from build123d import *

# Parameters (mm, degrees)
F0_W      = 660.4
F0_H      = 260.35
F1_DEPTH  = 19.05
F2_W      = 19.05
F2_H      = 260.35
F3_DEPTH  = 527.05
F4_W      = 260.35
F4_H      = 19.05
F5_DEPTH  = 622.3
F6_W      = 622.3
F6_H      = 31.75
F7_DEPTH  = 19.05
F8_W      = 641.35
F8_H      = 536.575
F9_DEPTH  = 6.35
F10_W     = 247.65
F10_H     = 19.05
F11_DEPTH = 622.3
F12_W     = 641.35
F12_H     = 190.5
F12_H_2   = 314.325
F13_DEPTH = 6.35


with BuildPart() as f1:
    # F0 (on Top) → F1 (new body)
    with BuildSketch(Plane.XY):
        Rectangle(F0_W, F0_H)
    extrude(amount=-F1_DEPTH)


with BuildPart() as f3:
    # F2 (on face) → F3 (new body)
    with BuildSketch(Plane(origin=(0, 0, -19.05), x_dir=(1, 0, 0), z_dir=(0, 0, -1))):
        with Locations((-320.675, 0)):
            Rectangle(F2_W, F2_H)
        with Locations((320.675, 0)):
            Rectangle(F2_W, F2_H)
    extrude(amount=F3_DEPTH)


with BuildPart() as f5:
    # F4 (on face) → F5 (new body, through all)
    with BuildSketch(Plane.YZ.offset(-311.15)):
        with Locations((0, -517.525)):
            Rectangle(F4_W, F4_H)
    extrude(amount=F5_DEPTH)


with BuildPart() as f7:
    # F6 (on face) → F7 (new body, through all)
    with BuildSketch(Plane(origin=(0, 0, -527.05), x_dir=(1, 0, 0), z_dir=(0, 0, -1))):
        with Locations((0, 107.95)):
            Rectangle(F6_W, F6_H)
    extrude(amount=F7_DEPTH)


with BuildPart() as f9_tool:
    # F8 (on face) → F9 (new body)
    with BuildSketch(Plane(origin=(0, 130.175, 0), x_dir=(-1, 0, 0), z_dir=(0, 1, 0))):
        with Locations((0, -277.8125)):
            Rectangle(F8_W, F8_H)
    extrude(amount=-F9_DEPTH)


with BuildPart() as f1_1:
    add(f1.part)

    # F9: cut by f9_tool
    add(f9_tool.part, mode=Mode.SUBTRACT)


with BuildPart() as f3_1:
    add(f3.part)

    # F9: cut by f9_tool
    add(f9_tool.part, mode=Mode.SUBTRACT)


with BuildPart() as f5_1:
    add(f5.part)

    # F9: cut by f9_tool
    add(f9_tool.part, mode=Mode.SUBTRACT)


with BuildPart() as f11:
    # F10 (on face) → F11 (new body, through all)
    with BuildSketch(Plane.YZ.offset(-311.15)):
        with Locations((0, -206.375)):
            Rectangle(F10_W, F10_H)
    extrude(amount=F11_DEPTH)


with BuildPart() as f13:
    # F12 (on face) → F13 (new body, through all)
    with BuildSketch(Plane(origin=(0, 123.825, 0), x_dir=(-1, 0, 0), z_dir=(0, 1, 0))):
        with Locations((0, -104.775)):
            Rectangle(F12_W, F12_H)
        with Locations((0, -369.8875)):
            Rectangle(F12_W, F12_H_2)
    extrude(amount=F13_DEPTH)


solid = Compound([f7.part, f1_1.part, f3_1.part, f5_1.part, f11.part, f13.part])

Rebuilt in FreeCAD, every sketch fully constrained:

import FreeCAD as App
import Part
import Sketcher

V = App.Vector
Q = App.Units.Quantity


def add_polygon(sketch, points):
    """Adds a closed chain of lines whose ends are joined by coincident constraints."""
    first, n = sketch.GeometryCount, len(points)
    for a, b in zip(points, points[1:] + points[:1]):
        sketch.addGeometry(Part.LineSegment(App.Vector(*a, 0), App.Vector(*b, 0)), False)
    for i in range(n):
        sketch.addConstraint(Sketcher.Constraint("Coincident", first + i, 2, first + (i + 1) % n, 1))

doc = App.newDocument("Part")
params = doc.addObject("Spreadsheet::Sheet", "Params")
for row, (alias, value) in enumerate([
    ("sketch1_width", "26 in"),
    ("sketch1_height", "10.25 in"),
    ("pad1_length", "0.75 in"),
    ("sketch2_width", "0.75 in"),
    ("sketch2_height", "10.25 in"),
    ("pad2_length", "20.75 in"),
    ("sketch3_width", "10.25 in"),
    ("sketch3_height", "0.75 in"),
    ("pad3_length", "24.5 in"),
    ("sketch4_width", "24.5 in"),
    ("sketch4_height", "1.25 in"),
    ("pad4_length", "0.75 in"),
    ("sketch5_width", "25.25 in"),
    ("sketch5_height", "21.125 in"),
    ("pad5_length", "0.25 in"),
    ("sketch6_width", "9.75 in"),
    ("sketch6_height", "0.75 in"),
    ("pad6_length", "24.5 in"),
    ("sketch7_height", "7.5 in"),
    ("sketch7_width", "25.25 in"),
    ("sketch7_height2", "12.375 in"),
    ("pad7_length", "0.25 in"),
], start=1):
    params.set(f"A{row}", alias)
    params.set(f"B{row}", "=" + value)
    params.setAlias(f"B{row}", alias)

body = doc.addObject("PartDesign::Body", "Body")

# Sketch on XY plane
sketch1 = body.newObject("Sketcher::SketchObject", "Sketch")
sketch1.AttachmentSupport = (doc.getObject("XY_Plane"), [""])
sketch1.MapMode = "FlatFace"
add_polygon(sketch1, [(-330.2, 130.175), (-330.2, -130.175), (330.2, -130.175), (330.2, 130.175)])  # lines 0-3
sketch1.addConstraint([
    Sketcher.Constraint("Vertical", 0),
    Sketcher.Constraint("Horizontal", 1),
    Sketcher.Constraint("Vertical", 2),
    Sketcher.Constraint("Horizontal", 3),
    Sketcher.Constraint("Symmetric", 0, 2, 2, 2, -1, 1),
    Sketcher.Constraint("DistanceX", 1, 1, 1, 2, Q("26 in")),
    Sketcher.Constraint("DistanceY", 0, 2, 0, 1, Q("10.25 in")),
])
sketch1.setExpression("Constraints[9]", "Params.sketch1_width")
sketch1.setExpression("Constraints[10]", "Params.sketch1_height")
pad1 = body.newObject("PartDesign::Pad", "Pad")
pad1.Profile = sketch1
pad1.setExpression("Length", "Params.pad1_length")
pad1.Reversed = True
body2 = doc.addObject("PartDesign::Body", "Body001")
body2.AllowCompound = True

# Sketch on XY plane
sketch2 = body2.newObject("Sketcher::SketchObject", "Sketch001")
sketch2.AttachmentSupport = (doc.getObject("XY_Plane001"), [""])
sketch2.MapMode = "FlatFace"
sketch2.AttachmentOffset = App.Placement(V(0, 0, -0.75 * 25.4), App.Rotation())
add_polygon(sketch2, [(-330.2, -130.175), (-330.2, 130.175), (-311.15, 130.175), (-311.15, -130.175)])  # lines 0-3
add_polygon(sketch2, [(311.15, -130.175), (311.15, 130.175), (330.2, 130.175), (330.2, -130.175)])  # lines 4-7
sketch2.addConstraint([
    Sketcher.Constraint("Vertical", 0),
    Sketcher.Constraint("Horizontal", 1),
    Sketcher.Constraint("Vertical", 2),
    Sketcher.Constraint("Horizontal", 3),
    Sketcher.Constraint("Vertical", 4),
    Sketcher.Constraint("Horizontal", 5),
    Sketcher.Constraint("Vertical", 6),
    Sketcher.Constraint("Horizontal", 7),
    Sketcher.Constraint("Symmetric", 2, 2, 4, 2, -1, 1),
    Sketcher.Constraint("Symmetric", 0, 2, 6, 2, -1, 1),
    Sketcher.Constraint("Horizontal", 1, 2, 4, 2),
    Sketcher.Constraint("DistanceX", 0, 2, -1, 1, Q("13 in")),
    Sketcher.Constraint("DistanceX", 1, 1, 1, 2, Q("0.75 in")),
    Sketcher.Constraint("DistanceY", 0, 1, 0, 2, Q("10.25 in")),
])
sketch2.setExpression("Constraints[20]", "Params.sketch2_width")
sketch2.setExpression("Constraints[21]", "Params.sketch2_height")
pad2 = body2.newObject("PartDesign::Pad", "Pad001")
pad2.Profile = sketch2
pad2.setExpression("Length", "Params.pad2_length")
pad2.Reversed = True
body3 = doc.addObject("PartDesign::Body", "Body002")

# Sketch on YZ plane
sketch3 = body3.newObject("Sketcher::SketchObject", "Sketch002")
sketch3.AttachmentSupport = (doc.getObject("YZ_Plane002"), [""])
sketch3.MapMode = "FlatFace"
sketch3.AttachmentOffset = App.Placement(V(0, 0, -12.25 * 25.4), App.Rotation())
add_polygon(sketch3, [(-130.175, -508), (-130.175, -527.05), (130.175, -527.05), (130.175, -508)])  # lines 0-3
sketch3.addConstraint([
    Sketcher.Constraint("Vertical", 0),
    Sketcher.Constraint("Horizontal", 1),
    Sketcher.Constraint("Vertical", 2),
    Sketcher.Constraint("Horizontal", 3),
    Sketcher.Constraint("DistanceY", 2, 2, -1, 1, Q("20 in")),
    Sketcher.Constraint("DistanceX", 1, 1, 1, 2, Q("10.25 in")),
    Sketcher.Constraint("DistanceY", 0, 2, 0, 1, Q("0.75 in")),
    Sketcher.Constraint("DistanceX", 0, 2, -1, 1, Q("5.125 in")),
])
sketch3.setExpression("Constraints[9]", "Params.sketch3_width")
sketch3.setExpression("Constraints[10]", "Params.sketch3_height")
pad3 = body3.newObject("PartDesign::Pad", "Pad002")
pad3.Profile = sketch3
pad3.setExpression("Length", "Params.pad3_length")
body4 = doc.addObject("PartDesign::Body", "Body003")

# Sketch on XY plane
sketch4 = body4.newObject("Sketcher::SketchObject", "Sketch003")
sketch4.AttachmentSupport = (doc.getObject("XY_Plane003"), [""])
sketch4.MapMode = "FlatFace"
sketch4.AttachmentOffset = App.Placement(V(0, 0, -20.75 * 25.4), App.Rotation())
add_polygon(sketch4, [(-311.15, -123.825), (-311.15, -92.075), (311.15, -92.075), (311.15, -123.825)])  # lines 0-3
sketch4.addConstraint([
    Sketcher.Constraint("Vertical", 0),
    Sketcher.Constraint("Horizontal", 1),
    Sketcher.Constraint("Vertical", 2),
    Sketcher.Constraint("Horizontal", 3),
    Sketcher.Constraint("DistanceX", 1, 1, 1, 2, Q("24.5 in")),
    Sketcher.Constraint("DistanceY", 0, 1, 0, 2, Q("1.25 in")),
    Sketcher.Constraint("DistanceX", 0, 2, -1, 1, Q("12.25 in")),
    Sketcher.Constraint("DistanceY", 0, 2, -1, 1, Q("3.625 in")),
])
sketch4.setExpression("Constraints[8]", "Params.sketch4_width")
sketch4.setExpression("Constraints[9]", "Params.sketch4_height")
pad4 = body4.newObject("PartDesign::Pad", "Pad003")
pad4.Profile = sketch4
pad4.setExpression("Length", "Params.pad4_length")
pad4.Reversed = True
body5 = doc.addObject("PartDesign::Body", "Body004")

# Sketch on XZ plane
sketch5 = body5.newObject("Sketcher::SketchObject", "Sketch004")
sketch5.AttachmentSupport = (doc.getObject("XZ_Plane004"), [""])
sketch5.MapMode = "FlatFace"
sketch5.AttachmentOffset = App.Placement(V(0, 0, -5.125 * 25.4), App.Rotation())
add_polygon(sketch5, [(320.675, -9.525), (320.675, -546.1), (-320.675, -546.1), (-320.675, -9.525)])  # lines 0-3
sketch5.addConstraint([
    Sketcher.Constraint("Vertical", 0),
    Sketcher.Constraint("Horizontal", 1),
    Sketcher.Constraint("Vertical", 2),
    Sketcher.Constraint("Horizontal", 3),
    Sketcher.Constraint("DistanceX", 1, 2, 1, 1, Q("25.25 in")),
    Sketcher.Constraint("DistanceY", 0, 2, -1, 1, Q("21.5 in")),
    Sketcher.Constraint("DistanceY", 0, 2, 0, 1, Q("21.125 in")),
    Sketcher.Constraint("DistanceX", -1, 1, 0, 2, Q("12.625 in")),
])
sketch5.setExpression("Constraints[8]", "Params.sketch5_width")
sketch5.setExpression("Constraints[10]", "Params.sketch5_height")
pad5 = body5.newObject("PartDesign::Pad", "Pad004")
pad5.Profile = sketch5
pad5.setExpression("Length", "Params.pad5_length")
doc.recompute()

body6 = doc.addObject("PartDesign::Body", "Body005")
body6.BaseFeature = body5
boolean = body.newObject("PartDesign::Boolean", "Boolean")
boolean.Type = "Cut"
boolean.addObjects([body6])
doc.recompute()
body2.AllowCompound = True
doc.recompute()

body7 = doc.addObject("PartDesign::Body", "Body006")
body7.BaseFeature = body5
boolean2 = body2.newObject("PartDesign::Boolean", "Boolean001")
boolean2.Type = "Cut"
boolean2.addObjects([body7])
doc.recompute()

boolean3 = body3.newObject("PartDesign::Boolean", "Boolean002")
boolean3.Type = "Cut"
boolean3.addObjects([body5])
body8 = doc.addObject("PartDesign::Body", "Body007")

# Sketch on YZ plane
sketch6 = body8.newObject("Sketcher::SketchObject", "Sketch005")
sketch6.AttachmentSupport = (doc.getObject("YZ_Plane007"), [""])
sketch6.MapMode = "FlatFace"
sketch6.AttachmentOffset = App.Placement(V(0, 0, -12.25 * 25.4), App.Rotation())
add_polygon(sketch6, [(-123.825, -196.85), (-123.825, -215.9), (123.825, -215.9), (123.825, -196.85)])  # lines 0-3
sketch6.addConstraint([
    Sketcher.Constraint("Vertical", 0),
    Sketcher.Constraint("Horizontal", 1),
    Sketcher.Constraint("Vertical", 2),
    Sketcher.Constraint("Horizontal", 3),
    Sketcher.Constraint("DistanceX", 1, 1, 1, 2, Q("9.75 in")),
    Sketcher.Constraint("DistanceY", 0, 2, 0, 1, Q("0.75 in")),
    Sketcher.Constraint("DistanceY", 0, 2, -1, 1, Q("8.5 in")),
    Sketcher.Constraint("DistanceX", 0, 2, -1, 1, Q("4.875 in")),
])
sketch6.setExpression("Constraints[8]", "Params.sketch6_width")
sketch6.setExpression("Constraints[9]", "Params.sketch6_height")
pad6 = body8.newObject("PartDesign::Pad", "Pad005")
pad6.Profile = sketch6
pad6.setExpression("Length", "Params.pad6_length")
body9 = doc.addObject("PartDesign::Body", "Body008")
body9.AllowCompound = True

# Sketch on XZ plane
sketch7 = body9.newObject("Sketcher::SketchObject", "Sketch006")
sketch7.AttachmentSupport = (doc.getObject("XZ_Plane008"), [""])
sketch7.MapMode = "FlatFace"
sketch7.AttachmentOffset = App.Placement(V(0, 0, -4.875 * 25.4), App.Rotation())
add_polygon(sketch7, [(320.675, -9.525), (320.675, -200.025), (-320.675, -200.025), (-320.675, -9.525)])  # lines 0-3
add_polygon(sketch7, [(320.675, -212.725), (320.675, -527.05), (-320.675, -527.05), (-320.675, -212.725)])  # lines 4-7
sketch7.addConstraint([
    Sketcher.Constraint("Vertical", 0),
    Sketcher.Constraint("Horizontal", 1),
    Sketcher.Constraint("Vertical", 2),
    Sketcher.Constraint("Horizontal", 3),
    Sketcher.Constraint("Vertical", 4),
    Sketcher.Constraint("Horizontal", 5),
    Sketcher.Constraint("Vertical", 6),
    Sketcher.Constraint("Horizontal", 7),
    Sketcher.Constraint("Vertical", 3, 2, 4, 2),
    Sketcher.Constraint("Vertical", 2, 2, 5, 2),
    Sketcher.Constraint("DistanceY", 0, 2, 0, 1, Q("7.5 in")),
    Sketcher.Constraint("DistanceY", 6, 2, 2, 2, Q("8 in")),
    Sketcher.Constraint("DistanceX", 1, 2, 1, 1, Q("25.25 in")),
    Sketcher.Constraint("DistanceY", 4, 2, 4, 1, Q("12.375 in")),
    Sketcher.Constraint("DistanceY", 4, 2, -1, 1, Q("20.75 in")),
    Sketcher.Constraint("DistanceX", -1, 1, 0, 2, Q("12.625 in")),
])
sketch7.setExpression("Constraints[18]", "Params.sketch7_height")
sketch7.setExpression("Constraints[20]", "Params.sketch7_width")
sketch7.setExpression("Constraints[21]", "Params.sketch7_height2")
pad7 = body9.newObject("PartDesign::Pad", "Pad006")
pad7.Profile = sketch7
pad7.setExpression("Length", "Params.pad7_length")
pad7.Reversed = True

doc.recompute()
